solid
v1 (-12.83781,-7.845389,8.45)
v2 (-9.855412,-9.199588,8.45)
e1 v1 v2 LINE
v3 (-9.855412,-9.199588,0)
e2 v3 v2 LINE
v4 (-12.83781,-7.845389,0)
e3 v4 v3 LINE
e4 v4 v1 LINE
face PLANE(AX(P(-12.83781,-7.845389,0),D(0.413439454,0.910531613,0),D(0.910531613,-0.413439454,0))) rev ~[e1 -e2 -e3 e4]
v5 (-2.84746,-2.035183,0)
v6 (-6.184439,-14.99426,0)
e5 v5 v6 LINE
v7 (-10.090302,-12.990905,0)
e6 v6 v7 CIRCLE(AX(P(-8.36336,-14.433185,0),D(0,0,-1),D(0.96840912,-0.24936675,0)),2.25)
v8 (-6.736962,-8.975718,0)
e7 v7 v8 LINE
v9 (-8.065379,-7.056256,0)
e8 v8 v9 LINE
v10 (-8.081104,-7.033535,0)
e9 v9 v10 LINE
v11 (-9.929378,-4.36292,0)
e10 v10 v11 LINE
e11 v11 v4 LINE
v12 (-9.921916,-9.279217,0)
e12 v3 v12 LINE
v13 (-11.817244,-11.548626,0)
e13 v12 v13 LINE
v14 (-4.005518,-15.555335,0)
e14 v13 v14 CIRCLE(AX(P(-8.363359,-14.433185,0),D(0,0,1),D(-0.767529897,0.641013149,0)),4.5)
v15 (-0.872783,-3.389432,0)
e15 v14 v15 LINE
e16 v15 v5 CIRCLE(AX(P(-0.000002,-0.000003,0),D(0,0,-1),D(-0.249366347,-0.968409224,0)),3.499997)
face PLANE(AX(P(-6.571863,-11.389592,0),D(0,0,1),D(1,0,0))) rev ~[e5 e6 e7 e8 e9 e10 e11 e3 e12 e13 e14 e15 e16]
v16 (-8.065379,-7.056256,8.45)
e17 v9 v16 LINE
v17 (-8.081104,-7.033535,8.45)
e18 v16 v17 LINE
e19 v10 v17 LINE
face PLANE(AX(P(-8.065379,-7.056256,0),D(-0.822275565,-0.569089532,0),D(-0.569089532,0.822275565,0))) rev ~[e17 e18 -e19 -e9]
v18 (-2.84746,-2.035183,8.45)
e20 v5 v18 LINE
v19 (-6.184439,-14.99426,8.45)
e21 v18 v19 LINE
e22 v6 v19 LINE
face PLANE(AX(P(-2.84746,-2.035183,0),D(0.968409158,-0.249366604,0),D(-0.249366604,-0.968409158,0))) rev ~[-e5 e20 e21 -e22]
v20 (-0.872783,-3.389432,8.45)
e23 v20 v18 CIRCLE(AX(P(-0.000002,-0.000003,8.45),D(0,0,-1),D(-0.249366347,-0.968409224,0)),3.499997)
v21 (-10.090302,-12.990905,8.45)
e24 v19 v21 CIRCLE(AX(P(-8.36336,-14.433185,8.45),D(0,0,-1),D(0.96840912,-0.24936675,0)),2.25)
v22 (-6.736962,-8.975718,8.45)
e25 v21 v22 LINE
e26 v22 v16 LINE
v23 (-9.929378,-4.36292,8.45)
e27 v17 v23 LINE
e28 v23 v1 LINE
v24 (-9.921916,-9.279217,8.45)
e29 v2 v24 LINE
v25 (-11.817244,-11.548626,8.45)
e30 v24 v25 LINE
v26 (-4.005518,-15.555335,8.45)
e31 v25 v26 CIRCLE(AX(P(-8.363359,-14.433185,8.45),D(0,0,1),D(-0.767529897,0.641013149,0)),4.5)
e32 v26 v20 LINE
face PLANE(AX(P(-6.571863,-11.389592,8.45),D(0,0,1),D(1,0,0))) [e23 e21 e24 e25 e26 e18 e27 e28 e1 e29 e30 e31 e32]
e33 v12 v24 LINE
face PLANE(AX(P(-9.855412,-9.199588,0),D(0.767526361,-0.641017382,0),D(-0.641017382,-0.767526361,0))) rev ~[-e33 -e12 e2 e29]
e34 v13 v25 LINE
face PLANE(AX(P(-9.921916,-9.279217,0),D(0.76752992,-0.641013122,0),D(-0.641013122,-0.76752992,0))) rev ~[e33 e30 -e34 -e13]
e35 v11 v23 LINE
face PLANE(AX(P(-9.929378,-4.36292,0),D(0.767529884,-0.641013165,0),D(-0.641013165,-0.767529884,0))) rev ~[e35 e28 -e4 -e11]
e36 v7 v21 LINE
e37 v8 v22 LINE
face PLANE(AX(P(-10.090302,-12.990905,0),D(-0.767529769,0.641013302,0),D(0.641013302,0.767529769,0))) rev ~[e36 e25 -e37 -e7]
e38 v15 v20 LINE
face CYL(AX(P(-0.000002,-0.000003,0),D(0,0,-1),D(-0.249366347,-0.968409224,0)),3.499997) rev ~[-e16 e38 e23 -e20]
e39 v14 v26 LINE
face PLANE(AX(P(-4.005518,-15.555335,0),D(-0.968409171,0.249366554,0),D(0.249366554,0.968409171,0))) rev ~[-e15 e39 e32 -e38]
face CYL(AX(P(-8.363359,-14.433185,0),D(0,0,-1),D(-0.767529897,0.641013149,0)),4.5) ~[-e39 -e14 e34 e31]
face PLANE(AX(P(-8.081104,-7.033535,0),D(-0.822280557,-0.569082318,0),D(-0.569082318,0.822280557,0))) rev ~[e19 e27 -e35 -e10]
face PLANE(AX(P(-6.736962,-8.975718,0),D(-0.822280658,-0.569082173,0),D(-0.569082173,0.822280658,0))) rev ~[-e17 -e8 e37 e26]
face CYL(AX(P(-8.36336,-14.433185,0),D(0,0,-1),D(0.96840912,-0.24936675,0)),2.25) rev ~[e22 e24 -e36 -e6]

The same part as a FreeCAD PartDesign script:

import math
import FreeCAD as App
import Part
import Sketcher

V = App.Vector

doc = App.newDocument("Part")
body = doc.addObject("PartDesign::Body", "Body")

sketch1 = body.newObject("Sketcher::SketchObject", "Sketch")
sketch1.AttachmentSupport = (doc.getObject("XY_Plane"), [""])
sketch1.MapMode = "FlatFace"
sketch1.addGeometry(Part.LineSegment(V(-4.005518, -15.555335, 0), V(-0.872783, -3.389432, 0)), False)
sketch1.addGeometry(Part.ArcOfCircle(Part.Circle(V(-0.000002, -0.000003, 0), V(0, 0, 1), 3.499997), math.radians(-144.445252), math.radians(-104.440019)), False)
sketch1.addGeometry(Part.LineSegment(V(-2.84746, -2.035183, 0), V(-6.184439, -14.99426, 0)), False)
sketch1.addGeometry(Part.ArcOfCircle(Part.Circle(V(-8.36336, -14.433185, 0), V(0, 0, 1), 2.25), math.radians(140.132588), math.radians(345.559957)), False)
sketch1.addGeometry(Part.LineSegment(V(-10.090302, -12.990905, 0), V(-6.736962, -8.975718, 0)), False)
sketch1.addGeometry(Part.LineSegment(V(-6.736962, -8.975718, 0), V(-8.065379, -7.056256, 0)), False)
sketch1.addGeometry(Part.LineSegment(V(-8.065379, -7.056256, 0), V(-8.081104, -7.033535, 0)), False)
sketch1.addGeometry(Part.LineSegment(V(-8.081104, -7.033535, 0), V(-9.929378, -4.36292, 0)), False)
sketch1.addGeometry(Part.LineSegment(V(-9.929378, -4.36292, 0), V(-12.83781, -7.845389, 0)), False)
sketch1.addGeometry(Part.LineSegment(V(-12.83781, -7.845389, 0), V(-9.855412, -9.199588, 0)), False)
sketch1.addGeometry(Part.LineSegment(V(-9.855412, -9.199588, 0), V(-9.921916, -9.279217, 0)), False)
sketch1.addGeometry(Part.LineSegment(V(-9.921916, -9.279217, 0), V(-11.817244, -11.548626, 0)), False)
sketch1.addGeometry(Part.ArcOfCircle(Part.Circle(V(-8.363359, -14.433185, 0), V(0, 0, 1), 4.5), math.radians(140.132591), math.radians(345.559966)), False)
sketch1.addConstraint(Sketcher.Constraint("Coincident", 0, 2, 1, 2))
sketch1.addConstraint(Sketcher.Constraint("Coincident", 1, 1, 2, 1))
sketch1.addConstraint(Sketcher.Constraint("Tangent", 2, 2, 3, 2))
sketch1.addConstraint(Sketcher.Constraint("Tangent", 3, 1, 4, 1))
sketch1.addConstraint(Sketcher.Constraint("Coincident", 4, 2, 5, 1))
sketch1.addConstraint(Sketcher.Constraint("Coincident", 5, 2, 6, 1))
sketch1.addConstraint(Sketcher.Constraint("Coincident", 6, 2, 7, 1))
sketch1.addConstraint(Sketcher.Constraint("Coincident", 7, 2, 8, 1))
sketch1.addConstraint(Sketcher.Constraint("Coincident", 8, 2, 9, 1))
sketch1.addConstraint(Sketcher.Constraint("Coincident", 9, 2, 10, 1))
sketch1.addConstraint(Sketcher.Constraint("Coincident", 10, 2, 11, 1))
sketch1.addConstraint(Sketcher.Constraint("Tangent", 11, 2, 12, 1))
sketch1.addConstraint(Sketcher.Constraint("Tangent", 12, 2, 0, 1))
sketch1.addConstraint(Sketcher.Constraint("Coincident", 1, 3, -1, 1))
sketch1.addConstraint(Sketcher.Constraint("Coincident", 12, 3, 3, 3))
sketch1.addConstraint(Sketcher.Constraint("Parallel", 0, 2))
sketch1.addConstraint(Sketcher.Constraint("Parallel", 5, 7))
sketch1.addConstraint(Sketcher.Constraint("Parallel", 4, 8))
sketch1.addConstraint(Sketcher.Constraint("Parallel", 8, 11))
sketch1.addConstraint(Sketcher.Constraint("Radius", 12, 4.5))
sketch1.addConstraint(Sketcher.Constraint("Radius", 3, 2.25))
sketch1.addConstraint(Sketcher.Constraint("Radius", 1, 3.499997))
sketch1.addConstraint(Sketcher.Constraint("DistanceY", 3, 3, 1, 1, 12.398002))
sketch1.addConstraint(Sketcher.Constraint("DistanceX", 7, 2, 5, 2, 1.863999))
sketch1.addConstraint(Sketcher.Constraint("DistanceX", 3, 3, 1, 1, 5.5159))
sketch1.addConstraint(Sketcher.Constraint("DistanceX", 4, 2, 1, 1, 3.889502))
sketch1.addConstraint(Sketcher.Constraint("DistanceX", 3, 1, 6, 2, 2.009198))
sketch1.addConstraint(Sketcher.Constraint("DistanceY", 4, 2, 7, 2, 4.612798))
sketch1.addConstraint(Sketcher.Constraint("DistanceY", 9, 2, 8, 2, 1.354199))
sketch1.addConstraint(Sketcher.Constraint("DistanceY", 10, 2, 4, 2, 0.303499))
sketch1.addConstraint(Sketcher.Constraint("Distance", 0, 12.562771))
sketch1.addConstraint(Sketcher.Constraint("Distance", 4, 5.231311))
sketch1.addConstraint(Sketcher.Constraint("Distance", 6, 0.027632))
sketch1.addConstraint(Sketcher.Constraint("DistanceX", 5, 2, -1, 1, 8.065379))
sketch1.addConstraint(Sketcher.Constraint("DistanceX", 8, 2, -1, 1, 12.83781))
sketch1.addConstraint(Sketcher.Constraint("DistanceX", 9, 2, 4, 2, 3.11845))
pad1 = body.newObject("PartDesign::Pad", "Pad")
pad1.Profile = sketch1
pad1.Length = 8.45

doc.recompute()
